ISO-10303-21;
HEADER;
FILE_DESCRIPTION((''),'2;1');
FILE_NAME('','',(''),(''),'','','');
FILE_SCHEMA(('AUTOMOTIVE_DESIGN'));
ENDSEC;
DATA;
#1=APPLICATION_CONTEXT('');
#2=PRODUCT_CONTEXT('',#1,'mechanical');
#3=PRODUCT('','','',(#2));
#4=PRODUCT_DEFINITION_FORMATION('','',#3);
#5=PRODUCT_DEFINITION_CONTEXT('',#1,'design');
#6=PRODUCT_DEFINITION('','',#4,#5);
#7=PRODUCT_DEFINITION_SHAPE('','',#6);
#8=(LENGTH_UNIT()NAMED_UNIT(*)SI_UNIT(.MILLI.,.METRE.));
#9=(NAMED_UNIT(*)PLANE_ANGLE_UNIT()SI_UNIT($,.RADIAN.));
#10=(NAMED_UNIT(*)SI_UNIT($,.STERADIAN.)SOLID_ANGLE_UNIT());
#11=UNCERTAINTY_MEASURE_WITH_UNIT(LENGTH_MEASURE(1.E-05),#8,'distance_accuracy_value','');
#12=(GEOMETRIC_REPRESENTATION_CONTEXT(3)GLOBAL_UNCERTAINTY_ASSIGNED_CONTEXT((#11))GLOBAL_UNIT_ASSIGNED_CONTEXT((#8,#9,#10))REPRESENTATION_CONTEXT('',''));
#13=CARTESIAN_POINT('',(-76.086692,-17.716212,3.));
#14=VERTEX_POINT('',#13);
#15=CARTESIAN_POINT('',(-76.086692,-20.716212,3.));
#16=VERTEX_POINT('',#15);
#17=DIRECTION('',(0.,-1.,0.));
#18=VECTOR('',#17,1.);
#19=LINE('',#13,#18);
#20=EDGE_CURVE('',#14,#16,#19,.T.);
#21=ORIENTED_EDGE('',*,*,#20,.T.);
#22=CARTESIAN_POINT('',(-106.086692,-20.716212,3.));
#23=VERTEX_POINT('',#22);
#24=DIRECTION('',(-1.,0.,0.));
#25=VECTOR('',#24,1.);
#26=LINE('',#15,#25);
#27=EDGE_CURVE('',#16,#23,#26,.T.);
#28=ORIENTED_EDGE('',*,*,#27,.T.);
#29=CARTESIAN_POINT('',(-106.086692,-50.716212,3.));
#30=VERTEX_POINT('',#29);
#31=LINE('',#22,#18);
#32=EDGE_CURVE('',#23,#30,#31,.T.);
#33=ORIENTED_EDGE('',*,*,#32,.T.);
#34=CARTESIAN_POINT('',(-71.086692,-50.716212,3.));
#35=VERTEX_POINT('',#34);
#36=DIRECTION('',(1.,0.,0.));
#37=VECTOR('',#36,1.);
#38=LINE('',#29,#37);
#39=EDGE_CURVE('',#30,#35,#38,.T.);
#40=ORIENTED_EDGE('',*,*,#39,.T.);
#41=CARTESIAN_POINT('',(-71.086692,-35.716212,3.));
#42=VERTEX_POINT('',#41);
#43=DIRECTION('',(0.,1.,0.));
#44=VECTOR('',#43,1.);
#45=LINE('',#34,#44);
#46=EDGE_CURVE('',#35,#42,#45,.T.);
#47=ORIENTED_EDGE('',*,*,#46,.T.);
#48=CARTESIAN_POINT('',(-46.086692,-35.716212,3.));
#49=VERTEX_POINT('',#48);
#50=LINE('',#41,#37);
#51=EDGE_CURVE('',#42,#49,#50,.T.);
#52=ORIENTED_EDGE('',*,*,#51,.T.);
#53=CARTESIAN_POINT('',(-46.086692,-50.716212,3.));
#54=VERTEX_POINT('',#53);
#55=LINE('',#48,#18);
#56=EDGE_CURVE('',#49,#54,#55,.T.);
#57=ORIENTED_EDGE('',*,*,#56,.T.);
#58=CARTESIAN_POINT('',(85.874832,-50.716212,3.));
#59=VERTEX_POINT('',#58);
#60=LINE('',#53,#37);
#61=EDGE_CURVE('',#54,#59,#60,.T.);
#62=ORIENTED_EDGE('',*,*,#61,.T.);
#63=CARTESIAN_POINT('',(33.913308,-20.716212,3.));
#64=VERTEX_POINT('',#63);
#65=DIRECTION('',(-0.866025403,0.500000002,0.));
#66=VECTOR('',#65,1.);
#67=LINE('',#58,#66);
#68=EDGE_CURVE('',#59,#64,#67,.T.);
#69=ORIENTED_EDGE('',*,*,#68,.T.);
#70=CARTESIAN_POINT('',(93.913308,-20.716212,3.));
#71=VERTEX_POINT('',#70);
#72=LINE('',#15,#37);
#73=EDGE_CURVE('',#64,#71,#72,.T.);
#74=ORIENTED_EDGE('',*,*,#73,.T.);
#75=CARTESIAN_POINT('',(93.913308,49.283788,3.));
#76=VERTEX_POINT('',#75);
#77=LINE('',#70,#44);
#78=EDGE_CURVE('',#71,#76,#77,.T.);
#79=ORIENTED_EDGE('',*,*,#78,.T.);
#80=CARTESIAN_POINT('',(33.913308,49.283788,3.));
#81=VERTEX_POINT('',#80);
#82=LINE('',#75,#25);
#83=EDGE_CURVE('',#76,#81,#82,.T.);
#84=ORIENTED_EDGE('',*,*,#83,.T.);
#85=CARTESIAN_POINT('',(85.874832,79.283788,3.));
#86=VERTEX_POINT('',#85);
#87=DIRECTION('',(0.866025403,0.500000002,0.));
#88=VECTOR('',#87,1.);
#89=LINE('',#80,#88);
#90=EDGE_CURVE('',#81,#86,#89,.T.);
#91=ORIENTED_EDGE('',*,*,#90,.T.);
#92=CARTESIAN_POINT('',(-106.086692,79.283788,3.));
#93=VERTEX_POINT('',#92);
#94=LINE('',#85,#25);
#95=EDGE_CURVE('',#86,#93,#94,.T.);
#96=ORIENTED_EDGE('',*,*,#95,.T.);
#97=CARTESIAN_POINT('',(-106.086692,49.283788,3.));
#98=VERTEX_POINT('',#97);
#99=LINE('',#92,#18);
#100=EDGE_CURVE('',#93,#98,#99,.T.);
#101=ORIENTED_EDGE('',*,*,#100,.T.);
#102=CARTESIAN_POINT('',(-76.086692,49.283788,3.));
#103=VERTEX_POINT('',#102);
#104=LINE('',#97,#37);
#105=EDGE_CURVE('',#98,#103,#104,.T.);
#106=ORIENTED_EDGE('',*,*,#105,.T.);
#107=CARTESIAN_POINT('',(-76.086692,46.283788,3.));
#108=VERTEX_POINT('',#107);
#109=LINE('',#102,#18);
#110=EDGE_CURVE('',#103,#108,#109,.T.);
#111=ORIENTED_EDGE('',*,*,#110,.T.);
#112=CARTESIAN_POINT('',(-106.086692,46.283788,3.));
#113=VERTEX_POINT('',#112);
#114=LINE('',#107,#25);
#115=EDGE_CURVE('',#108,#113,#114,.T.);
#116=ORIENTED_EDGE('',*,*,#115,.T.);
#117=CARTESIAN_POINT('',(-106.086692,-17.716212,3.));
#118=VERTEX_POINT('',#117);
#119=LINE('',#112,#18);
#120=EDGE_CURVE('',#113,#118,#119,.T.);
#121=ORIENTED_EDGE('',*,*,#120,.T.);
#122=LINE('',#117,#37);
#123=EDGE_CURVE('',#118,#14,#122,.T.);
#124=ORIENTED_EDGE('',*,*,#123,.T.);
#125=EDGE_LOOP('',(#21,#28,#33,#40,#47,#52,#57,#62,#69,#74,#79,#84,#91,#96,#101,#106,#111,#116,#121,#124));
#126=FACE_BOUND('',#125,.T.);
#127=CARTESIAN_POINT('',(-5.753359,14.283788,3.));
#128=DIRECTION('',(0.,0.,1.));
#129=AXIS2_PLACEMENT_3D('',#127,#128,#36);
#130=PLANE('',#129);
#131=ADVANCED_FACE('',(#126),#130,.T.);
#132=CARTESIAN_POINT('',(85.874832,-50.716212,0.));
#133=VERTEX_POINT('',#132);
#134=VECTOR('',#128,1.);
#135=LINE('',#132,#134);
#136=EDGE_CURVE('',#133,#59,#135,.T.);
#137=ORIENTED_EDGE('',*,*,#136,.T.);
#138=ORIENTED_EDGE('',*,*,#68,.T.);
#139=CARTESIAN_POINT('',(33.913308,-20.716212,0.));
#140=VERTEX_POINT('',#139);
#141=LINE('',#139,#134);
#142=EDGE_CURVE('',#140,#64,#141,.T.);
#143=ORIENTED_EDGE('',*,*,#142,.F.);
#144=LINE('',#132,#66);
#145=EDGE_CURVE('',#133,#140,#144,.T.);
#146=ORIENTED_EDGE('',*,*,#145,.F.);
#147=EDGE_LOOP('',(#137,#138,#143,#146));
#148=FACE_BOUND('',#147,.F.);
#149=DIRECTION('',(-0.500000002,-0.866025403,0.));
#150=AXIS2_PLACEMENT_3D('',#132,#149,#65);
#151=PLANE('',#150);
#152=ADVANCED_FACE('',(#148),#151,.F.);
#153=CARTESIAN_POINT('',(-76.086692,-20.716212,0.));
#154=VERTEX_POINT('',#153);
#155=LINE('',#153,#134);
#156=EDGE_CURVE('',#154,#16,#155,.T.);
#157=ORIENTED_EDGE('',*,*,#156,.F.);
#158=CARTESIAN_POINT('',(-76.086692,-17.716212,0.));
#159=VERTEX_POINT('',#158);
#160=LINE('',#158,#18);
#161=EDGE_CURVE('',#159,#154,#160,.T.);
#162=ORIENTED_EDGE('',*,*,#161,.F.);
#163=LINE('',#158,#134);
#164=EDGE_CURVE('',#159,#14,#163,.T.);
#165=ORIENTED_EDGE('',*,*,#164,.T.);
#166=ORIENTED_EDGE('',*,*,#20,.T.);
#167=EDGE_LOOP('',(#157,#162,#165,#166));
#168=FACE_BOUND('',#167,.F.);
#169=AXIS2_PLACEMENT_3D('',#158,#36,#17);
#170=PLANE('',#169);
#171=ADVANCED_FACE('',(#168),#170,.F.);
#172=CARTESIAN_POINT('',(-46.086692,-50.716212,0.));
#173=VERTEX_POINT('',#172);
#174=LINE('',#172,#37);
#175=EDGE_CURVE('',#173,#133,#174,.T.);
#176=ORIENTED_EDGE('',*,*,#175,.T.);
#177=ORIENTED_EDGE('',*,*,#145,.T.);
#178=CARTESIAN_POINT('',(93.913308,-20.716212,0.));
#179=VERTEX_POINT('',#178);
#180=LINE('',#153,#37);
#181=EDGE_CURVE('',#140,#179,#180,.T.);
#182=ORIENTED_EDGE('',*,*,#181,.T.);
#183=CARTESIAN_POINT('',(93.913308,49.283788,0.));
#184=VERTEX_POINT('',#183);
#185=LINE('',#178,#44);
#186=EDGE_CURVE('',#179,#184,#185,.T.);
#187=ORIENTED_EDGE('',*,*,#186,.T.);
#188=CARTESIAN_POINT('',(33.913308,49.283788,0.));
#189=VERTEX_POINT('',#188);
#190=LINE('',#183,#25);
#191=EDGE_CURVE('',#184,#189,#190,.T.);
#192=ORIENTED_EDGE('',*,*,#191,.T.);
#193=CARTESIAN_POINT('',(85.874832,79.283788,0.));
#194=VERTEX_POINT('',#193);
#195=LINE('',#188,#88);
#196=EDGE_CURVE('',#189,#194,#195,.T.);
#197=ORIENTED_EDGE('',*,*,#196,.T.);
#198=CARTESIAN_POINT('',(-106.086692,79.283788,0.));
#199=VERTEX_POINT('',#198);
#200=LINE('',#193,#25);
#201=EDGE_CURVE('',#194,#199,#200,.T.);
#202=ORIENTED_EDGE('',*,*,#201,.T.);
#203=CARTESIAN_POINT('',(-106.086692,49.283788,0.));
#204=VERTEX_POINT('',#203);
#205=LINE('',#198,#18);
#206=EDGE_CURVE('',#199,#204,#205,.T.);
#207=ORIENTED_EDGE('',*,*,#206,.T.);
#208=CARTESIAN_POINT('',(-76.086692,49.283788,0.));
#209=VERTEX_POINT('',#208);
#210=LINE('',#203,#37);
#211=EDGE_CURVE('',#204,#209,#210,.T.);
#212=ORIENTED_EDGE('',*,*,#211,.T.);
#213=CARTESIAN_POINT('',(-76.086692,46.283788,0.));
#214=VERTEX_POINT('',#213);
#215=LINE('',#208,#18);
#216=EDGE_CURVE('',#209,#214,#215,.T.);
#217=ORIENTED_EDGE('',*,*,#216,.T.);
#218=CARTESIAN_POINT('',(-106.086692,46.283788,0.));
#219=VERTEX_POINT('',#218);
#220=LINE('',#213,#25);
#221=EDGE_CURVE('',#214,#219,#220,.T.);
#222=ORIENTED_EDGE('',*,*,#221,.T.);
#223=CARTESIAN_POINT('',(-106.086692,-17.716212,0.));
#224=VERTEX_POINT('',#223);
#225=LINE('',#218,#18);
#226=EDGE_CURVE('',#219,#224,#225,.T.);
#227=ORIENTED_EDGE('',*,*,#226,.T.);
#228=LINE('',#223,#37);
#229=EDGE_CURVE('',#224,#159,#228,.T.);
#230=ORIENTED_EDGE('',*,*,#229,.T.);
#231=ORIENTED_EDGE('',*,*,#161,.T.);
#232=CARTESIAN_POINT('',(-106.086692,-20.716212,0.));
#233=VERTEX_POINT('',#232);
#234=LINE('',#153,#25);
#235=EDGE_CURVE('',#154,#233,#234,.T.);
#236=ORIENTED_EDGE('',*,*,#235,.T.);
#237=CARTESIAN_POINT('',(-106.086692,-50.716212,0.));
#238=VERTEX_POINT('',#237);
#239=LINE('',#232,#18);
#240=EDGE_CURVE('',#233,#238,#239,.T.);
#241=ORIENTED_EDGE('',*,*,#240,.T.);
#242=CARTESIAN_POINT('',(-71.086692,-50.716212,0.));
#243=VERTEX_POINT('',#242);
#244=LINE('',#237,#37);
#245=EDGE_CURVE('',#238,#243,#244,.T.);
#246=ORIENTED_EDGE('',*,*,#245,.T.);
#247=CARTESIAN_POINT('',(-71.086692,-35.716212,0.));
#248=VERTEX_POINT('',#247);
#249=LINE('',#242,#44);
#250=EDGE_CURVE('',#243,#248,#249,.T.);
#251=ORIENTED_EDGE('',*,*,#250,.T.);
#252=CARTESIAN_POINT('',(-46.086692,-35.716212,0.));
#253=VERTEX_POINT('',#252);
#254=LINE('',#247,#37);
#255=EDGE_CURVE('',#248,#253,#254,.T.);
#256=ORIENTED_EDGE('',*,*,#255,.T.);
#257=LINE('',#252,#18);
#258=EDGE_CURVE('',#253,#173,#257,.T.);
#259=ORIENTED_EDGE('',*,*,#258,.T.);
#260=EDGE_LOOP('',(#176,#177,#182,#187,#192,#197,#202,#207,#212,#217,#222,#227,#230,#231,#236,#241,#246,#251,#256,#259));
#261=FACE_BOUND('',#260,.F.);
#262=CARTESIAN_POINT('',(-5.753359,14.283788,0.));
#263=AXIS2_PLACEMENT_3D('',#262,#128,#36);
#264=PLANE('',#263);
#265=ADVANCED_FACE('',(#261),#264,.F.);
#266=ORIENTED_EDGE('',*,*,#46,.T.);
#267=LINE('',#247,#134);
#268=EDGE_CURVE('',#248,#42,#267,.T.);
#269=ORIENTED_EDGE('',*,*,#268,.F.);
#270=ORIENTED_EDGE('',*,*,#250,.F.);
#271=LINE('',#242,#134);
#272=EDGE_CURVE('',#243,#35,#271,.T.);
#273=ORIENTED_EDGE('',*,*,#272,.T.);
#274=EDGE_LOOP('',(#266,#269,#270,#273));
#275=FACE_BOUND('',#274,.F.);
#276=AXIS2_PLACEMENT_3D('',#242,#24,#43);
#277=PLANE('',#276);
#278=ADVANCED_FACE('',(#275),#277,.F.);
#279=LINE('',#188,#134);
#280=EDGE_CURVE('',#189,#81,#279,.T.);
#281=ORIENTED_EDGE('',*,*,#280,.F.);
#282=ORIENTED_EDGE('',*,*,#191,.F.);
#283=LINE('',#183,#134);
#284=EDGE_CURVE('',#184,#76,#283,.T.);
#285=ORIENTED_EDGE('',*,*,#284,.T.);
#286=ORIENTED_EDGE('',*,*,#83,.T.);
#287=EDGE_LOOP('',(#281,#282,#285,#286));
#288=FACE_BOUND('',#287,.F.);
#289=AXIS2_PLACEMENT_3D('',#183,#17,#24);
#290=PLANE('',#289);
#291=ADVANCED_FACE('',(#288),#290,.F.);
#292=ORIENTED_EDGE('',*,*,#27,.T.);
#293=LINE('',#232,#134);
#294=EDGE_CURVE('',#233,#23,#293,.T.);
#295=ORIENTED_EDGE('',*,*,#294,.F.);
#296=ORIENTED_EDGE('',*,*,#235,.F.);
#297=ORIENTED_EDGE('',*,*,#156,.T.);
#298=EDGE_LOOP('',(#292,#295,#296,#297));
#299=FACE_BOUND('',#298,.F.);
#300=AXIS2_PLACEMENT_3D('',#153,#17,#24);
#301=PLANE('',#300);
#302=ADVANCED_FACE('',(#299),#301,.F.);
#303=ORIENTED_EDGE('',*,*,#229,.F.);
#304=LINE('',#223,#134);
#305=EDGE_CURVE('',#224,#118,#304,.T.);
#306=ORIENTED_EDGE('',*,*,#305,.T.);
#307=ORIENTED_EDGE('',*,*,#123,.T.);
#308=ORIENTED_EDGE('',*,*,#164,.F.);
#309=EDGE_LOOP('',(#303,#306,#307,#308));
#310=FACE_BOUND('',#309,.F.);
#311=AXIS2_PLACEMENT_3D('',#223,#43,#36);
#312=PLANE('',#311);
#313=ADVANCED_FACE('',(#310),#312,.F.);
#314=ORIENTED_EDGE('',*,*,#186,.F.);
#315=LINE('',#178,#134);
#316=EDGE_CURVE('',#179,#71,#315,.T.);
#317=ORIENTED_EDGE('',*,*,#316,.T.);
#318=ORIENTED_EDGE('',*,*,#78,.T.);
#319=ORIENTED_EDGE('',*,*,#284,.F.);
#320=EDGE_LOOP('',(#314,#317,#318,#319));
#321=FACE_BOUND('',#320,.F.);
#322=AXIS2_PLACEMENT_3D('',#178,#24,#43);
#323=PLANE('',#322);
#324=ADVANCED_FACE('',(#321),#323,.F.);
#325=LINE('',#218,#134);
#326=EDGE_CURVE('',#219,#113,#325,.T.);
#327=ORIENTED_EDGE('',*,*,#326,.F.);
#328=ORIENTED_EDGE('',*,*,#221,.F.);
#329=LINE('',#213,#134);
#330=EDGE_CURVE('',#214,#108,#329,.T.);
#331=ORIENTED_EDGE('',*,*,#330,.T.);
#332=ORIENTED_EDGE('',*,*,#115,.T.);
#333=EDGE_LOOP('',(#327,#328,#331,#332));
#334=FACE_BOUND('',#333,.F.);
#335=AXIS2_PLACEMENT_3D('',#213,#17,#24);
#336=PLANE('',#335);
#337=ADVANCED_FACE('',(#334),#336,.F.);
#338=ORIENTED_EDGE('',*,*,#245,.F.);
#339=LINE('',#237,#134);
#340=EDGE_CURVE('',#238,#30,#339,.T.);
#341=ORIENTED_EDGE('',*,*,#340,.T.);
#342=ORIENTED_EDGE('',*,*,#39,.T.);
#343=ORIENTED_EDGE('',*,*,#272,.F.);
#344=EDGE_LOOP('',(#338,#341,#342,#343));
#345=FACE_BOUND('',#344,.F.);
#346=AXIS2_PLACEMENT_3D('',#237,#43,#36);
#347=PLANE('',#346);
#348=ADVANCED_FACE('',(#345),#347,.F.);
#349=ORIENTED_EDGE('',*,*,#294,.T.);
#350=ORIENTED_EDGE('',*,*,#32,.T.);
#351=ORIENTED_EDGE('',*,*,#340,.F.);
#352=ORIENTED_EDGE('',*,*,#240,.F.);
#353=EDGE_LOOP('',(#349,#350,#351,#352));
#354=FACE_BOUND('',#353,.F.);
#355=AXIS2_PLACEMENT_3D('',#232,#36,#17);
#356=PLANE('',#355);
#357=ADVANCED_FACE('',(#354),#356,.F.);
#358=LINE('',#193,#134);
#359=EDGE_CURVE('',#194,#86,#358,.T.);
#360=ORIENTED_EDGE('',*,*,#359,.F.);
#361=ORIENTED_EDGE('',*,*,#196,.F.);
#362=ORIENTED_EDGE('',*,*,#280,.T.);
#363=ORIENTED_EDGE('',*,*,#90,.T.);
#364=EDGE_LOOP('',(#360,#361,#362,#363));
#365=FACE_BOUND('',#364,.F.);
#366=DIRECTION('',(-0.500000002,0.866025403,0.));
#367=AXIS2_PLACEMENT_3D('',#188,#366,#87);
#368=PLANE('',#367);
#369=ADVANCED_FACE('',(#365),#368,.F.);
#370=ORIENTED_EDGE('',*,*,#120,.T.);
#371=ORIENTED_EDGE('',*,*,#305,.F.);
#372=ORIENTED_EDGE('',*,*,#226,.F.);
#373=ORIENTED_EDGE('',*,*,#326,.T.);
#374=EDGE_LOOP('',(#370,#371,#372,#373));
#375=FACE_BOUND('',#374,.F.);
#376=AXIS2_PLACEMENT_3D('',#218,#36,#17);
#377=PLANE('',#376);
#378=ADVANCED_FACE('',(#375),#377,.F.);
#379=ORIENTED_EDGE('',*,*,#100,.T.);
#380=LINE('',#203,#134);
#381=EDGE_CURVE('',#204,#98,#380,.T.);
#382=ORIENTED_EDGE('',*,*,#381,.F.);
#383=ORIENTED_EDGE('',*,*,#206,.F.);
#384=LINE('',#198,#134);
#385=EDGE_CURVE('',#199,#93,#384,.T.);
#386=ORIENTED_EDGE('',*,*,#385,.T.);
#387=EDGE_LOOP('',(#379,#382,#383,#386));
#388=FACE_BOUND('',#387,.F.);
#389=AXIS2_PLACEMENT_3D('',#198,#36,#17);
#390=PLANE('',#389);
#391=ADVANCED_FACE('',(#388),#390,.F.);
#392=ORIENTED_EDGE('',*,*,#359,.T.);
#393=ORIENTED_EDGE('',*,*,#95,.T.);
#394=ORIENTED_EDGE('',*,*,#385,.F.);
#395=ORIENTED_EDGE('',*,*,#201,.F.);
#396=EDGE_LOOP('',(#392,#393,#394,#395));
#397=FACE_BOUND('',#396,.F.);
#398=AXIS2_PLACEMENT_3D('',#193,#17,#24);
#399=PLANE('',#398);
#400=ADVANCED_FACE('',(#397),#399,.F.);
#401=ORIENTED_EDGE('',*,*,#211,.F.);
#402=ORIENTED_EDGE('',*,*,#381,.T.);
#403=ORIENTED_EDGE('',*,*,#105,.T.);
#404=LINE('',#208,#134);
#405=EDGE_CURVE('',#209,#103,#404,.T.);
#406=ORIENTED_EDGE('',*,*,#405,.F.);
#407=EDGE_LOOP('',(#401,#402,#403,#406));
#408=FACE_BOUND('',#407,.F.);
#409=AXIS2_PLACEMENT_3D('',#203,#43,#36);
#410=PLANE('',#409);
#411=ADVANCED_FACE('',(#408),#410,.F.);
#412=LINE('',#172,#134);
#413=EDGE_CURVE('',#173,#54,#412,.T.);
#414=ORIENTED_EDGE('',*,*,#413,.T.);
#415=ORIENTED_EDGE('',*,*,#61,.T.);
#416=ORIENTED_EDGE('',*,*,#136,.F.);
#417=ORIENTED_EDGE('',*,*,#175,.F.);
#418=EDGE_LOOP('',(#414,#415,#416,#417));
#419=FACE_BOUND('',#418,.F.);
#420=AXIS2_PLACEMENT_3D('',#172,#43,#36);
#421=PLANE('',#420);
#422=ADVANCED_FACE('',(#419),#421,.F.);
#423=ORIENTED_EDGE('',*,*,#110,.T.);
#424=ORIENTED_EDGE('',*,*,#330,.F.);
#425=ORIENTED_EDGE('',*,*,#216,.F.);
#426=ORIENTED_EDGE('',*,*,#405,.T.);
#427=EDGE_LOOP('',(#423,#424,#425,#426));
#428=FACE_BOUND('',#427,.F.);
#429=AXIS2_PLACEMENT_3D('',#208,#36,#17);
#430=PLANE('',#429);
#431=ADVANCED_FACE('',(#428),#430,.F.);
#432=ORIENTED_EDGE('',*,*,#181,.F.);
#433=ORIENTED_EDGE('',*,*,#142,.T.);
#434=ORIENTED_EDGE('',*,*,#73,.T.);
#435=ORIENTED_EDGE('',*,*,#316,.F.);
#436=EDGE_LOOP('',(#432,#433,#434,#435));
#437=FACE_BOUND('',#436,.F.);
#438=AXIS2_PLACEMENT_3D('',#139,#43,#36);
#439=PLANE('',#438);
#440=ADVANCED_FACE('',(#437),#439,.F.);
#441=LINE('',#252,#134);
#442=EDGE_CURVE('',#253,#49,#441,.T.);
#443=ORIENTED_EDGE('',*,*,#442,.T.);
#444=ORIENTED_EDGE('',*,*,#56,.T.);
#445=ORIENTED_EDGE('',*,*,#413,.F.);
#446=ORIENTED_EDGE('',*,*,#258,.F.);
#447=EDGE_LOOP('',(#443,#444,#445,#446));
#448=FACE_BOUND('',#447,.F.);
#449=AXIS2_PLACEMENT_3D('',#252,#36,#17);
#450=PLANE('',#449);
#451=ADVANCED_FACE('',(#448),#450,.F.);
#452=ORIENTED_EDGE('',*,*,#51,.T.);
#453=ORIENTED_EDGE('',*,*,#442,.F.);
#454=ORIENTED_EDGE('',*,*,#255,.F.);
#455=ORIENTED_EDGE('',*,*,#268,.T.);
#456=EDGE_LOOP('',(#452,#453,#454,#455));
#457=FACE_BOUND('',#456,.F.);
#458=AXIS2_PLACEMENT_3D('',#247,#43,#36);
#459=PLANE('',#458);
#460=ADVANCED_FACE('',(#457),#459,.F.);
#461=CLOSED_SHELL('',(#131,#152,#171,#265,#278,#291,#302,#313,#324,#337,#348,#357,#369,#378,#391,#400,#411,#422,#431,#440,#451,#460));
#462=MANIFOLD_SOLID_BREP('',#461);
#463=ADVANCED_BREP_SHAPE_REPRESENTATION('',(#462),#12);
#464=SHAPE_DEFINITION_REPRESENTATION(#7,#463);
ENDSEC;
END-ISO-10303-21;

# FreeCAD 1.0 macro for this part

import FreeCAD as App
import Part
import Sketcher
Q = App.Units.Quantity


def add_polygon(sketch, points):
    """Adds a closed chain of lines whose ends are joined by coincident constraints."""
    first, n = sketch.GeometryCount, len(points)
    for a, b in zip(points, points[1:] + points[:1]):
        sketch.addGeometry(Part.LineSegment(App.Vector(*a, 0), App.Vector(*b, 0)), False)
    for i in range(n):
        sketch.addConstraint(Sketcher.Constraint("Coincident", first + i, 2, first + (i + 1) % n, 1))

doc = App.newDocument("Part")
params = doc.addObject("Spreadsheet::Sheet", "Params")
for row, (alias, value) in enumerate([
    ("sketch1_width", "60 mm"),
    ("sketch1_width2", "30 mm"),
    ("sketch1_width3", "35 mm"),
    ("sketch1_width4", "25 mm"),
    ("sketch1_height", "3 mm"),
    ("pad1_length", "3 mm"),
], start=1):
    params.set(f"A{row}", alias)
    params.set(f"B{row}", "=" + value)
    params.setAlias(f"B{row}", alias)

body = doc.addObject("PartDesign::Body", "Body")

# Sketch on XY plane
sketch1 = doc.addObject("Sketcher::SketchObject", "Sketch")
body.addObject(sketch1)
sketch1.AttachmentSupport = (doc.XY_Plane, [""])
sketch1.MapMode = "FlatFace"
add_polygon(sketch1, [(93.9, 49.3), (33.9, 49.3), (85.9, 79.3), (-106.1, 79.3), (-106.1, 49.3), (-76.1, 49.3), (-76.1, 46.3), (-106.1, 46.3), (-106.1, -17.7), (-76.1, -17.7), (-76.1, -20.7), (-106.1, -20.7), (-106.1, -50.7), (-71.1, -50.7), (-71.1, -35.7), (-46.1, -35.7), (-46.1, -50.7), (85.9, -50.7), (33.9, -20.7), (93.9, -20.7)])  # lines 0-19
sketch1.addConstraint(Sketcher.Constraint("Horizontal", 0))
sketch1.addConstraint(Sketcher.Constraint("Horizontal", 2))
sketch1.addConstraint(Sketcher.Constraint("Vertical", 3))
sketch1.addConstraint(Sketcher.Constraint("Horizontal", 4))
sketch1.addConstraint(Sketcher.Constraint("Vertical", 5))
sketch1.addConstraint(Sketcher.Constraint("Horizontal", 6))
sketch1.addConstraint(Sketcher.Constraint("Vertical", 7))
sketch1.addConstraint(Sketcher.Constraint("Horizontal", 8))
sketch1.addConstraint(Sketcher.Constraint("Vertical", 9))
sketch1.addConstraint(Sketcher.Constraint("Horizontal", 10))
sketch1.addConstraint(Sketcher.Constraint("Vertical", 11))
sketch1.addConstraint(Sketcher.Constraint("Horizontal", 12))
sketch1.addConstraint(Sketcher.Constraint("Vertical", 13))
sketch1.addConstraint(Sketcher.Constraint("Horizontal", 14))
sketch1.addConstraint(Sketcher.Constraint("Vertical", 15))
sketch1.addConstraint(Sketcher.Constraint("Horizontal", 16))
sketch1.addConstraint(Sketcher.Constraint("Horizontal", 18))
sketch1.addConstraint(Sketcher.Constraint("Vertical", 19))
sketch1.addConstraint(Sketcher.Constraint("Horizontal", 0, 2, 3, 2))
sketch1.addConstraint(Sketcher.Constraint("Horizontal", 12, 2, 15, 2))
sketch1.addConstraint(Sketcher.Constraint("Horizontal", 10, 2, 17, 2))
sketch1.addConstraint(Sketcher.Constraint("Vertical", 3, 2, 6, 2))
sketch1.addConstraint(Sketcher.Constraint("Vertical", 5, 2, 8, 2))
sketch1.addConstraint(Sketcher.Constraint("Vertical", 7, 2, 10, 2))
sketch1.addConstraint(Sketcher.Constraint("Vertical", 1, 2, 16, 2))
sketch1.addConstraint(Sketcher.Constraint("Vertical", 0, 2, 17, 2))
sketch1.addConstraint(Sketcher.Constraint("Equal", 10, 3))
sketch1.addConstraint(Sketcher.Constraint("Equal", 5, 9))
sketch1.addConstraint(Sketcher.Constraint("Equal", 3, 11))
sketch1.addConstraint(Sketcher.Constraint("DistanceX", 0, 2, 0, 1, 60.0))
sketch1.addConstraint(Sketcher.Constraint("DistanceX", 4, 1, 4, 2, 30.0))
sketch1.addConstraint(Sketcher.Constraint("DistanceX", 12, 1, 12, 2, 35.0))
sketch1.addConstraint(Sketcher.Constraint("DistanceX", 14, 1, 14, 2, 25.0))
sketch1.addConstraint(Sketcher.Constraint("DistanceY", 5, 2, 5, 1, 3.0))
sketch1.addConstraint(Sketcher.Constraint("DistanceY", 7, 2, 7, 1, 64.0))
sketch1.addConstraint(Sketcher.Constraint("DistanceY", 13, 1, 13, 2, 15.0))
sketch1.addConstraint(Sketcher.Constraint("Angle", 1, Q("30 deg")))
sketch1.addConstraint(Sketcher.Constraint("DistanceX", 2, 2, 0, 2, 140.0))
sketch1.addConstraint(Sketcher.Constraint("DistanceX", -1, 1, 1, 2, 85.874832))
sketch1.addConstraint(Sketcher.Constraint("DistanceY", -1, 1, 1, 2, 79.283788))
sketch1.setExpression("Constraints[49]", "Params.sketch1_width")
sketch1.setExpression("Constraints[50]", "Params.sketch1_width2")
sketch1.setExpression("Constraints[51]", "Params.sketch1_width3")
sketch1.setExpression("Constraints[52]", "Params.sketch1_width4")
sketch1.setExpression("Constraints[53]", "Params.sketch1_height")
pad1 = doc.addObject("PartDesign::Pad", "Pad")
body.addObject(pad1)
pad1.Profile = sketch1
pad1.setExpression("Length", "Params.pad1_length")

doc.recompute()
